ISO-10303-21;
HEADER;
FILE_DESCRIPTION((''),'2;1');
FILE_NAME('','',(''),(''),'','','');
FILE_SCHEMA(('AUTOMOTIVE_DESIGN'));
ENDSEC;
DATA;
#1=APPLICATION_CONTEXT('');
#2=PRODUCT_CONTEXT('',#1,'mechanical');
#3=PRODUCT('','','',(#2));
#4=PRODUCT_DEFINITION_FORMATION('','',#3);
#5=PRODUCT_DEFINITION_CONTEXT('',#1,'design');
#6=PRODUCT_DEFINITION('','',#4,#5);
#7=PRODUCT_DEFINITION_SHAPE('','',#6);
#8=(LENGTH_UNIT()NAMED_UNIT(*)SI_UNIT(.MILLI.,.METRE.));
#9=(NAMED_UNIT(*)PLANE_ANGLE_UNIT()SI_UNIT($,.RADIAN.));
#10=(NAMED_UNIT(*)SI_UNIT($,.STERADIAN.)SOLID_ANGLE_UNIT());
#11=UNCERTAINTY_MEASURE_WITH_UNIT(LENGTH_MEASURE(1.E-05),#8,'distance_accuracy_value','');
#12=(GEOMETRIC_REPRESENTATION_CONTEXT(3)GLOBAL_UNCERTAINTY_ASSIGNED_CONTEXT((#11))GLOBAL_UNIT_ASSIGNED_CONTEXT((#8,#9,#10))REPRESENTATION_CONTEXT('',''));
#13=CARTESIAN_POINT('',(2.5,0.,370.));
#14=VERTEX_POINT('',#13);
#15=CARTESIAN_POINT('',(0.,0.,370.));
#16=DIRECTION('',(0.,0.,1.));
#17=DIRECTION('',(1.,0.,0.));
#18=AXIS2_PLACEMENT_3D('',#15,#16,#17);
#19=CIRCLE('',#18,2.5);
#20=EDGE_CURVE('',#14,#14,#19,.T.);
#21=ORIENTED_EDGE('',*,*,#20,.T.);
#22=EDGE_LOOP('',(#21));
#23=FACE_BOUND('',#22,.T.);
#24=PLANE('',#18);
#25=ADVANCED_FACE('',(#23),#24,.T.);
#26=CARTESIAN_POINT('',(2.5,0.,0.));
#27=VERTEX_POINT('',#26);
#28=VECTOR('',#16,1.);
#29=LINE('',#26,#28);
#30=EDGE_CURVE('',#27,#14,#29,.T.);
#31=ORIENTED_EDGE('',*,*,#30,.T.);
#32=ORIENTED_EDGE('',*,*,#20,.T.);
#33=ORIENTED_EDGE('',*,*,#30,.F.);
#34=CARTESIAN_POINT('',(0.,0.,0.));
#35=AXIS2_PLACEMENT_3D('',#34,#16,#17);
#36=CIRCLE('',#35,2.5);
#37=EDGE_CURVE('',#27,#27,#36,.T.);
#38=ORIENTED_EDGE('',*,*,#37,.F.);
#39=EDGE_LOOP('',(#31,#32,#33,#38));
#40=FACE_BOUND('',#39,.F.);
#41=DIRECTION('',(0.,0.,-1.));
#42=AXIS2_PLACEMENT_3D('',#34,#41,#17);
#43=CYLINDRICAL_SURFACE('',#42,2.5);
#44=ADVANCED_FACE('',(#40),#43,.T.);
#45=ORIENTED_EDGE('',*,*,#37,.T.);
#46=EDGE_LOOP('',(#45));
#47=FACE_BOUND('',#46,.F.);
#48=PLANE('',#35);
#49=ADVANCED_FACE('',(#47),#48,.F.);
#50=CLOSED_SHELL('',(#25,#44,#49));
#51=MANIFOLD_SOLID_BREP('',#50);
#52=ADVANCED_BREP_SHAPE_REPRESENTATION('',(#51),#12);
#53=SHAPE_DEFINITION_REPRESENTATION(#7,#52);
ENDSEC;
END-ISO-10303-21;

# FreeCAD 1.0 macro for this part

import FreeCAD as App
import Part
import Sketcher
from FreeCAD import Vector
Q = App.Units.Quantity

doc = App.newDocument("Part")
params = doc.addObject("Spreadsheet::Sheet", "Params")
for row, (alias, value) in enumerate([
    ("sketch1_diameter", "5 mm"),
    ("pad1_length", "370 mm"),
], start=1):
    params.set(f"A{row}", alias)
    params.set(f"B{row}", "=" + value)
    params.setAlias(f"B{row}", alias)

body = doc.addObject("PartDesign::Body", "Body")

# Sketch on XY plane
sketch1 = body.newObject("Sketcher::SketchObject", "Sketch")
sketch1.AttachmentSupport = (doc.getObject("XY_Plane"), [""])
sketch1.MapMode = "FlatFace"
sketch1.addGeometry(Part.Circle(Vector(0, 0, 0), Vector(0, 0, 1), 2.5), False)
sketch1.addConstraint([
    Sketcher.Constraint("Coincident", 0, 3, -1, 1),
    Sketcher.Constraint("Diameter", 0, Q("5 mm")),
])
sketch1.setExpression("Constraints[1]", "Params.sketch1_diameter")
pad1 = body.newObject("PartDesign::Pad", "Pad")
pad1.Profile = sketch1
pad1.setExpression("Length", "Params.pad1_length")

doc.recompute()
